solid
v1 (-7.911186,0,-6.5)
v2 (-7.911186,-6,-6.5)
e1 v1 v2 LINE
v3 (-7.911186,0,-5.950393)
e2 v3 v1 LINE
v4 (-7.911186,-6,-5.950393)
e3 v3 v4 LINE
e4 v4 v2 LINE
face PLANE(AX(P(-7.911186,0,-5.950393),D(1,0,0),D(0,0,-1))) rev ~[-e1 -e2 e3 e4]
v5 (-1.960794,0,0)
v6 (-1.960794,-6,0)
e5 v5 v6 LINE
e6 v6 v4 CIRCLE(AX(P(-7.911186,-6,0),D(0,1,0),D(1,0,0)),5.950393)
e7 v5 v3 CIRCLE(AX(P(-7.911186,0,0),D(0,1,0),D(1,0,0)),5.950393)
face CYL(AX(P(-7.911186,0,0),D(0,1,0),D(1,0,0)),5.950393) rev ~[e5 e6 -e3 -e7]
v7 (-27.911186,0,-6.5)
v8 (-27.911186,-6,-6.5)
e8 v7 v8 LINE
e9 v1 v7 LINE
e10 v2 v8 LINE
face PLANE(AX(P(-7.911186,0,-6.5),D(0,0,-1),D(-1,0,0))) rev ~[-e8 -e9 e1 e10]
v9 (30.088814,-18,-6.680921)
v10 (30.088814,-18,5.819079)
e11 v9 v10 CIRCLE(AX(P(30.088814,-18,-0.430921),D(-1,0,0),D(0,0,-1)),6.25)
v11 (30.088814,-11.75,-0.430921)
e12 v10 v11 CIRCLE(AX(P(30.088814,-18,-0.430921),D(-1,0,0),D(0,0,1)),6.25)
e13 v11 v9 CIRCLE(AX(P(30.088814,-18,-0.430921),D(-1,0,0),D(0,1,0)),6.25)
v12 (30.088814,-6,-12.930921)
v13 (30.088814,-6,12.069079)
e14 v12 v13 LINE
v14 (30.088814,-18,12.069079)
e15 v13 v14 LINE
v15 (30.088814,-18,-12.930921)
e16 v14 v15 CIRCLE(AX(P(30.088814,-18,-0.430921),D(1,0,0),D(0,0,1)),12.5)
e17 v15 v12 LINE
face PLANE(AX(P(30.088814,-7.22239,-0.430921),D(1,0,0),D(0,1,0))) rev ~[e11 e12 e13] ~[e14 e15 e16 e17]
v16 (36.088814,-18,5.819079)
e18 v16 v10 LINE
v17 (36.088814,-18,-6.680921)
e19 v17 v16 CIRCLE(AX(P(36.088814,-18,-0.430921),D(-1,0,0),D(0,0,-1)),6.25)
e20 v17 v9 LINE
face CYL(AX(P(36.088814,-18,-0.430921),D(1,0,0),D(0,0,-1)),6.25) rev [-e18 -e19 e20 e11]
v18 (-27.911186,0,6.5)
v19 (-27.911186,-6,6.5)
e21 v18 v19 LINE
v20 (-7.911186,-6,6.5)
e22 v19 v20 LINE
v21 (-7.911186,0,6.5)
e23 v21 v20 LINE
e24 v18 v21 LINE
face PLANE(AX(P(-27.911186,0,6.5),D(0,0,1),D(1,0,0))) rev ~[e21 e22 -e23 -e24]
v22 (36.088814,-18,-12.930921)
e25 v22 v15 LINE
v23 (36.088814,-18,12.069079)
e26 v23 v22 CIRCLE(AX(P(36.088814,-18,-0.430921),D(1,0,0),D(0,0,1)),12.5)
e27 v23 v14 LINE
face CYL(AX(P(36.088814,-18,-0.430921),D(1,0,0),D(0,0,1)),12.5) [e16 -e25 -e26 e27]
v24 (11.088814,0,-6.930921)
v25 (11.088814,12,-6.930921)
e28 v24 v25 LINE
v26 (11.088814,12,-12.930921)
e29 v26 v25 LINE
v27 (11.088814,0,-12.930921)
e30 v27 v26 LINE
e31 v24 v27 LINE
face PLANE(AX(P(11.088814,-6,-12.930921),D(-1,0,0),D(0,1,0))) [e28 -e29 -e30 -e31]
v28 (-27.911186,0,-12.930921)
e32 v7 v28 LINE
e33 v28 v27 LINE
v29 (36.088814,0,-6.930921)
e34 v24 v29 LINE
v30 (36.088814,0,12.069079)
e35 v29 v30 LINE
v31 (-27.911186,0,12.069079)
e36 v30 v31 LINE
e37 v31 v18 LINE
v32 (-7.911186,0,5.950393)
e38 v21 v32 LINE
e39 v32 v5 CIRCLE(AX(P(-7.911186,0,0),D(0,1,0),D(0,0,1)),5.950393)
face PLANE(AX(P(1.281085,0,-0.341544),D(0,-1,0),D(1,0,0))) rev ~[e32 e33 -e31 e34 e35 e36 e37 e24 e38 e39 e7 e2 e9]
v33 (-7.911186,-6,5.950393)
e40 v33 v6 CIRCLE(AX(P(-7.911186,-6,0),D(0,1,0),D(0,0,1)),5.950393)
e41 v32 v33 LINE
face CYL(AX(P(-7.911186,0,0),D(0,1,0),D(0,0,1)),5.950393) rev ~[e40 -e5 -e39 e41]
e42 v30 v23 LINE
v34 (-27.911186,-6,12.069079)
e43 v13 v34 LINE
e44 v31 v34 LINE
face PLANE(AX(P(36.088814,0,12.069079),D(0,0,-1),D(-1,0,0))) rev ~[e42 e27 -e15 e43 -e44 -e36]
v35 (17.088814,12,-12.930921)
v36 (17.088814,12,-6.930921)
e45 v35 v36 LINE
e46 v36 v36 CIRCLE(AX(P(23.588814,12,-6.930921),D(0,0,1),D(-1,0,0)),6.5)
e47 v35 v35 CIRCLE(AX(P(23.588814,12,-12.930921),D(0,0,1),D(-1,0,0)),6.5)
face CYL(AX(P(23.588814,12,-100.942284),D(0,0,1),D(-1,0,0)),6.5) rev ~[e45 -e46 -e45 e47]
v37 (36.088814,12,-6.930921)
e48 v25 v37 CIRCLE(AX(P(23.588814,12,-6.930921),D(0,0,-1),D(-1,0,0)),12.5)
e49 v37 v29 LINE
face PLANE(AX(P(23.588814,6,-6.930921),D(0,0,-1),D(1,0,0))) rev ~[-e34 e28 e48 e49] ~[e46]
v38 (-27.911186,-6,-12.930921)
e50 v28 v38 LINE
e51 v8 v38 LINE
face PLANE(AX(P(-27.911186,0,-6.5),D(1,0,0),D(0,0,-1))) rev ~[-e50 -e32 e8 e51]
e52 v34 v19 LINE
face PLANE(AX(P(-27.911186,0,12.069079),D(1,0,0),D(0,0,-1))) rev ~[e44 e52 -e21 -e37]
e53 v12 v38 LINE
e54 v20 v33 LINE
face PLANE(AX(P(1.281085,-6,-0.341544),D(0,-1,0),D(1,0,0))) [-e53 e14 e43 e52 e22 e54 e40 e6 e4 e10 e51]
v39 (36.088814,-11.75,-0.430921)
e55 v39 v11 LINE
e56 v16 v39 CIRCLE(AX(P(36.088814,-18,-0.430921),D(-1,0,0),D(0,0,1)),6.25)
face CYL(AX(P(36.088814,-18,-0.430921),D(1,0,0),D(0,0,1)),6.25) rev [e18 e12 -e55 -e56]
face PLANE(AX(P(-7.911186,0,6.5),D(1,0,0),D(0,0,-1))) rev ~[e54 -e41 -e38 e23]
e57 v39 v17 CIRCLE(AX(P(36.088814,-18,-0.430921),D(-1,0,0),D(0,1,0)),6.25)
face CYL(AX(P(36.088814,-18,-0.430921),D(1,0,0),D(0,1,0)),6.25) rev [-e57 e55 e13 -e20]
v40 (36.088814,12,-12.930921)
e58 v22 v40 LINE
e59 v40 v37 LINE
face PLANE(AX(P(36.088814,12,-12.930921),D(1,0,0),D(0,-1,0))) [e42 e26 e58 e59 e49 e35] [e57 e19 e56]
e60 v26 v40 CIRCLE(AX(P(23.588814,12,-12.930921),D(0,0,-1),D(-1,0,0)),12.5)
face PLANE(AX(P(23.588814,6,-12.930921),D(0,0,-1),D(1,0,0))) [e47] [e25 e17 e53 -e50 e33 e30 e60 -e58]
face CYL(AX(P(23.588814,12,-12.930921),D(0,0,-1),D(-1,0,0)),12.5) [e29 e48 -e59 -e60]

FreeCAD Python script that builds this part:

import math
import FreeCAD as App
import Part
import Sketcher
from FreeCAD import Vector

doc = App.newDocument("Part")
body = doc.addObject("PartDesign::Body", "Body")

sketch1 = body.newObject("Sketcher::SketchObject", "Sketch")
sketch1.AttachmentSupport = (doc.getObject("XZ_Plane"), [""])
sketch1.MapMode = "FlatFace"
sketch1.addGeometry([
    Part.LineSegment(Vector(36.1, -12.9, 0), Vector(36.1, 12.1, 0)),
    Part.LineSegment(Vector(36.1, 12.1, 0), Vector(-27.9, 12.1, 0)),
    Part.LineSegment(Vector(-27.9, 12.1, 0), Vector(-27.9, 6.5, 0)),
    Part.LineSegment(Vector(-27.9, 6.5, 0), Vector(-7.9, 6.5, 0)),
    Part.LineSegment(Vector(-7.9, 6.5, 0), Vector(-7.9, 6, 0)),
    Part.ArcOfCircle(Part.Circle(Vector(-7.9, 0, 0), Vector(0, 0, 1), 6), math.radians(0), math.radians(90)),
    Part.ArcOfCircle(Part.Circle(Vector(-7.9, 0, 0), Vector(0, 0, 1), 6), math.radians(-90), math.radians(0)),
    Part.LineSegment(Vector(-7.9, -6, 0), Vector(-7.9, -6.5, 0)),
    Part.LineSegment(Vector(-7.9, -6.5, 0), Vector(-27.9, -6.5, 0)),
    Part.LineSegment(Vector(-27.9, -6.5, 0), Vector(-27.9, -12.9, 0)),
    Part.LineSegment(Vector(-27.9, -12.9, 0), Vector(36.1, -12.9, 0)),
], False)
sketch1.addConstraint([
    Sketcher.Constraint("Coincident", 0, 2, 1, 1),
    Sketcher.Constraint("Coincident", 1, 2, 2, 1),
    Sketcher.Constraint("Coincident", 2, 2, 3, 1),
    Sketcher.Constraint("Coincident", 3, 2, 4, 1),
    Sketcher.Constraint("Coincident", 4, 2, 5, 2),
    Sketcher.Constraint("Tangent", 5, 1, 6, 2),
    Sketcher.Constraint("Coincident", 6, 1, 7, 1),
    Sketcher.Constraint("Coincident", 7, 2, 8, 1),
    Sketcher.Constraint("Coincident", 8, 2, 9, 1),
    Sketcher.Constraint("Coincident", 9, 2, 10, 1),
    Sketcher.Constraint("Coincident", 10, 2, 0, 1),
    Sketcher.Constraint("Vertical", 0),
    Sketcher.Constraint("Horizontal", 1),
    Sketcher.Constraint("Vertical", 2),
    Sketcher.Constraint("Horizontal", 3),
    Sketcher.Constraint("Vertical", 4),
    Sketcher.Constraint("Vertical", 7),
    Sketcher.Constraint("Horizontal", 8),
    Sketcher.Constraint("Vertical", 9),
    Sketcher.Constraint("Horizontal", 10),
    Sketcher.Constraint("Equal", 5, 6),
    Sketcher.Constraint("Symmetric", 4, 2, 6, 1, -1),
    Sketcher.Constraint("Symmetric", 2, 2, 8, 2, -1),
    Sketcher.Constraint("PointOnObject", 5, 1, -1),
    Sketcher.Constraint("Vertical", 6, 3, 3, 2),
    Sketcher.Constraint("DistanceX", 1, 2, 1, 1, 64.0),
    Sketcher.Constraint("DistanceX", 3, 1, 3, 2, 20.0),
    Sketcher.Constraint("DistanceY", 0, 1, 0, 2, 25.0),
    Sketcher.Constraint("DistanceY", 8, 2, 2, 2, 13.0),
    Sketcher.Constraint("Radius", 5, 5.950393),
    Sketcher.Constraint("DistanceY", 2, 2, 2, 1, 5.569079),
    Sketcher.Constraint("DistanceX", 5, 3, -1, 1, 7.911186),
])
pad1 = body.newObject("PartDesign::Pad", "Pad")
pad1.Profile = sketch1
pad1.Length = 6

sketch2 = body.newObject("Sketcher::SketchObject", "Sketch001")
sketch2.AttachmentSupport = (doc.getObject("YZ_Plane"), [""])
sketch2.MapMode = "FlatFace"
sketch2.AttachmentOffset = App.Placement(Vector(0, 0, 36.088814), App.Rotation())
sketch2.addGeometry([
    Part.LineSegment(Vector(0, -13, 0), Vector(0, 12, 0)),
    Part.LineSegment(Vector(0, 12, 0), Vector(-18, 12, 0)),
    Part.ArcOfCircle(Part.Circle(Vector(-18, 0, 0), Vector(0, 0, 1), 12), math.radians(90), math.radians(270)),
    Part.LineSegment(Vector(-18, -13, 0), Vector(0, -13, 0)),
    Part.ArcOfCircle(Part.Circle(Vector(-18, 0, 0), Vector(0, 0, 1), 6), math.radians(0), math.radians(90)),
    Part.ArcOfCircle(Part.Circle(Vector(-18, 0, 0), Vector(0, 0, 1), 6), math.radians(-90), math.radians(0)),
    Part.ArcOfCircle(Part.Circle(Vector(-18, 0, 0), Vector(0, 0, 1), 6), math.radians(90), math.radians(270)),
], False)
sketch2.addConstraint([
    Sketcher.Constraint("Coincident", 0, 2, 1, 1),
    Sketcher.Constraint("Tangent", 1, 2, 2, 1),
    Sketcher.Constraint("Tangent", 2, 2, 3, 1),
    Sketcher.Constraint("Coincident", 3, 2, 0, 1),
    Sketcher.Constraint("Tangent", 4, 1, 5, 2),
    Sketcher.Constraint("Tangent", 5, 1, 6, 2),
    Sketcher.Constraint("Tangent", 6, 1, 4, 2),
    Sketcher.Constraint("Vertical", 0),
    Sketcher.Constraint("Horizontal", 1),
    Sketcher.Constraint("Horizontal", 3),
    Sketcher.Constraint("Coincident", 4, 3, 2, 3),
    Sketcher.Constraint("PointOnObject", 0, 2, -2),
    Sketcher.Constraint("Horizontal", 6, 3, 4, 1),
    Sketcher.Constraint("Vertical", 2, 2, 5, 1),
    Sketcher.Constraint("Vertical", 5, 1, 6, 1),
    Sketcher.Constraint("Radius", 2, 12.5),
    Sketcher.Constraint("DistanceX", 1, 2, 1, 1, 18.0),
    Sketcher.Constraint("Radius", 4, 6.25),
    Sketcher.Constraint("DistanceY", 2, 3, -1, 1, 0.430921),
])
pad2 = body.newObject("PartDesign::Pad", "Pad001")
pad2.Profile = sketch2
pad2.Length = 6
pad2.Reversed = True

sketch3 = body.newObject("Sketcher::SketchObject", "Sketch002")
sketch3.AttachmentSupport = (doc.getObject("XY_Plane"), [""])
sketch3.MapMode = "FlatFace"
sketch3.AttachmentOffset = App.Placement(Vector(0, 0, -12.930921), App.Rotation())
sketch3.addGeometry([
    Part.LineSegment(Vector(36, 12, 0), Vector(36, -6, 0)),
    Part.LineSegment(Vector(36, -6, 0), Vector(11, -6, 0)),
    Part.LineSegment(Vector(11, -6, 0), Vector(11, 12, 0)),
    Part.ArcOfCircle(Part.Circle(Vector(24, 12, 0), Vector(0, 0, 1), 12), math.radians(0), math.radians(180)),
], False)
sketch3.addConstraint([
    Sketcher.Constraint("Coincident", 0, 2, 1, 1),
    Sketcher.Constraint("Coincident", 1, 2, 2, 1),
    Sketcher.Constraint("Tangent", 2, 2, 3, 2),
    Sketcher.Constraint("Tangent", 3, 1, 0, 1),
    Sketcher.Constraint("Vertical", 0),
    Sketcher.Constraint("Horizontal", 1),
    Sketcher.Constraint("Vertical", 2),
    Sketcher.Constraint("Radius", 3, 12.5),
    Sketcher.Constraint("DistanceY", 0, 2, 0, 1, 18.0),
    Sketcher.Constraint("DistanceY", -1, 1, 3, 3, 12.0),
    Sketcher.Constraint("DistanceX", -1, 1, 3, 3, 23.588814),
])
pad3 = body.newObject("PartDesign::Pad", "Pad002")
pad3.Profile = sketch3
pad3.Length = 6

sketch4 = body.newObject("Sketcher::SketchObject", "Sketch003")
sketch4.AttachmentSupport = (doc.getObject("XY_Plane"), [""])
sketch4.MapMode = "FlatFace"
sketch4.AttachmentOffset = App.Placement(Vector(0, 0, -12.930921), App.Rotation())
sketch4.addGeometry(Part.Circle(Vector(24, 12, 0), Vector(0, 0, 1), 6), False)
sketch4.addConstraint([
    Sketcher.Constraint("Diameter", 0, 13.0),
    Sketcher.Constraint("DistanceY", -1, 1, 0, 3, 12.0),
    Sketcher.Constraint("DistanceX", -1, 1, 0, 3, 23.588814),
])
doc.recompute()
hole = body.newObject("PartDesign::Hole", "Hole")
hole.Profile = sketch4
hole.ThreadType = "None"
hole.Diameter = 13
hole.DepthType = "ThroughAll"
hole.Reversed = True

doc.recompute()
